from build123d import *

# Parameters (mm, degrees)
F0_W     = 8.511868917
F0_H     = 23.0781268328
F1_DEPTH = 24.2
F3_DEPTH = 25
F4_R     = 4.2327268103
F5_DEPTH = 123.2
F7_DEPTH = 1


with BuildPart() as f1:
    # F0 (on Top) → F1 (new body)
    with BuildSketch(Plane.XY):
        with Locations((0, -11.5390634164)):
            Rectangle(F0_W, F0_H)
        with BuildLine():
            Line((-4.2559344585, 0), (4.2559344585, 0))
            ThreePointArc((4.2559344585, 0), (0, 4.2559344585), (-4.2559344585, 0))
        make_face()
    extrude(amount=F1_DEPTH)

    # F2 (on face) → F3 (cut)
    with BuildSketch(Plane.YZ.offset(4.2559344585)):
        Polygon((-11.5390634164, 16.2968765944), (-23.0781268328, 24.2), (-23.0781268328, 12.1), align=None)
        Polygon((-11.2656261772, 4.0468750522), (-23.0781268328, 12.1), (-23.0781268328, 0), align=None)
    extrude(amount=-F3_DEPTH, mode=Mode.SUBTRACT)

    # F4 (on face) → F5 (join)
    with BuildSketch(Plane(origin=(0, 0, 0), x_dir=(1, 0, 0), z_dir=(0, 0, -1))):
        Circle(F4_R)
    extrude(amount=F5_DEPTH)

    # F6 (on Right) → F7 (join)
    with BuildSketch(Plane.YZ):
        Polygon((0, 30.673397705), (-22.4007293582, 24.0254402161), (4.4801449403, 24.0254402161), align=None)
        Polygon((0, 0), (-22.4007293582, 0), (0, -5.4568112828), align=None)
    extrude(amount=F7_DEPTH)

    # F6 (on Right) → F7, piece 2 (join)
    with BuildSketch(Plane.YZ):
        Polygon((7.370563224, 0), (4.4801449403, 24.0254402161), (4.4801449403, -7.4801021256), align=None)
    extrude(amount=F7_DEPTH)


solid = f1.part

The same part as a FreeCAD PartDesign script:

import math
import FreeCAD as App
import Part
import Sketcher
from FreeCAD import Vector
Q = App.Units.Quantity

doc = App.newDocument("Part")
body = doc.addObject("PartDesign::Body", "Body")
body.AllowCompound = True

sketch1 = doc.addObject("Sketcher::SketchObject", "Sketch")
body.addObject(sketch1)
sketch1.AttachmentSupport = (doc.XY_Plane, [""])
sketch1.MapMode = "FlatFace"
sketch1.addGeometry([
    Part.LineSegment(Vector(-4.3, 0, 0), Vector(-4.3, -23.1, 0)),
    Part.LineSegment(Vector(-4.3, -23.1, 0), Vector(4.3, -23.1, 0)),
    Part.LineSegment(Vector(4.3, -23.1, 0), Vector(4.3, 0, 0)),
    Part.ArcOfCircle(Part.Circle(Vector(0, 0, 0), Vector(0, 0, 1), 4.3), math.radians(0), math.radians(180)),
], False)
sketch1.addConstraint([
    Sketcher.Constraint("Coincident", 0, 2, 1, 1),
    Sketcher.Constraint("Coincident", 1, 2, 2, 1),
    Sketcher.Constraint("Tangent", 2, 2, 3, 1),
    Sketcher.Constraint("Tangent", 3, 2, 0, 1),
    Sketcher.Constraint("Vertical", 0),
    Sketcher.Constraint("Horizontal", 1),
    Sketcher.Constraint("Vertical", 2),
    Sketcher.Constraint("Coincident", 3, 3, -1, 1),
    Sketcher.Constraint("Radius", 3, Q("4.255934 mm")),
    Sketcher.Constraint("DistanceY", 0, 2, 0, 1, Q("23.078127 mm")),
])
pad1 = doc.addObject("PartDesign::Pad", "Pad")
body.addObject(pad1)
pad1.Profile = sketch1
pad1.Length = 24.2

sketch2 = doc.addObject("Sketcher::SketchObject", "Sketch001")
body.addObject(sketch2)
sketch2.AttachmentSupport = (doc.YZ_Plane, [""])
sketch2.MapMode = "FlatFace"
sketch2.AttachmentOffset = App.Placement(Vector(0, 0, 4.255934), App.Rotation())
sketch2.addGeometry([
    Part.LineSegment(Vector(-12, 16, 0), Vector(-23, 24, 0)),
    Part.LineSegment(Vector(-23, 24, 0), Vector(-23, 12, 0)),
    Part.LineSegment(Vector(-23, 12, 0), Vector(-12, 16, 0)),
    Part.LineSegment(Vector(-11, 4, 0), Vector(-23, 12, 0)),
    Part.LineSegment(Vector(-23, 12, 0), Vector(-23, 0, 0)),
    Part.LineSegment(Vector(-23, 0, 0), Vector(-11, 4, 0)),
], False)
sketch2.addConstraint([
    Sketcher.Constraint("Coincident", 0, 2, 1, 1),
    Sketcher.Constraint("Coincident", 1, 2, 2, 1),
    Sketcher.Constraint("Coincident", 2, 2, 0, 1),
    Sketcher.Constraint("Coincident", 3, 2, 4, 1),
    Sketcher.Constraint("Coincident", 4, 2, 5, 1),
    Sketcher.Constraint("Coincident", 5, 2, 3, 1),
    Sketcher.Constraint("Vertical", 1),
    Sketcher.Constraint("Vertical", 4),
    Sketcher.Constraint("Coincident", 3, 2, 1, 2),
    Sketcher.Constraint("PointOnObject", 4, 2, -1),
    Sketcher.Constraint("Equal", 1, 4),
    Sketcher.Constraint("DistanceY", 1, 2, 1, 1, Q("12.1 mm")),
    Sketcher.Constraint("DistanceY", 5, 2, 2, 2, Q("12.250002 mm")),
    Sketcher.Constraint("DistanceX", 4, 2, 5, 2, Q("11.812501 mm")),
    Sketcher.Constraint("Distance", 0, Q("13.986041 mm")),
    Sketcher.Constraint("Distance", 2, Q("12.278589 mm")),
    Sketcher.Constraint("DistanceX", 0, 2, -1, 1, Q("23.078127 mm")),
])
pocket1 = doc.addObject("PartDesign::Pocket", "Pocket")
body.addObject(pocket1)
pocket1.Profile = sketch2
pocket1.Length = 25

sketch3 = doc.addObject("Sketcher::SketchObject", "Sketch002")
body.addObject(sketch3)
sketch3.AttachmentSupport = (doc.XY_Plane, [""])
sketch3.MapMode = "FlatFace"
sketch3.addGeometry(Part.Circle(Vector(0, 0, 0), Vector(0, 0, 1), 4.2), False)
sketch3.addConstraint([
    Sketcher.Constraint("Coincident", 0, 3, -1, 1),
    Sketcher.Constraint("Diameter", 0, Q("8.465454 mm")),
])
pad2 = doc.addObject("PartDesign::Pad", "Pad001")
body.addObject(pad2)
pad2.Profile = sketch3
pad2.Length = 123.2
pad2.Reversed = True

sketch4 = doc.addObject("Sketcher::SketchObject", "Sketch003")
body.addObject(sketch4)
sketch4.AttachmentSupport = (doc.YZ_Plane, [""])
sketch4.MapMode = "FlatFace"
sketch4.addGeometry([
    Part.LineSegment(Vector(0, 31, 0), Vector(-22, 24, 0)),
    Part.LineSegment(Vector(-22, 24, 0), Vector(4, 24, 0)),
    Part.LineSegment(Vector(4, 24, 0), Vector(0, 31, 0)),
    Part.LineSegment(Vector(0, 0, 0), Vector(-22, 0, 0)),
    Part.LineSegment(Vector(-22, 0, 0), Vector(0, -5, 0)),
    Part.LineSegment(Vector(0, -5, 0), Vector(0, 0, 0)),
], False)
sketch4.addConstraint([
    Sketcher.Constraint("Coincident", 0, 2, 1, 1),
    Sketcher.Constraint("Coincident", 1, 2, 2, 1),
    Sketcher.Constraint("Coincident", 2, 2, 0, 1),
    Sketcher.Constraint("Coincident", 3, 2, 4, 1),
    Sketcher.Constraint("Coincident", 4, 2, 5, 1),
    Sketcher.Constraint("Coincident", 5, 2, 3, 1),
    Sketcher.Constraint("Horizontal", 1),
    Sketcher.Constraint("Horizontal", 3),
    Sketcher.Constraint("Vertical", 5),
    Sketcher.Constraint("Coincident", 5, 2, -1, 1),
    Sketcher.Constraint("PointOnObject", 2, 2, -2),
    Sketcher.Constraint("Vertical", 0, 2, 3, 2),
    Sketcher.Constraint("DistanceX", 3, 2, 3, 1, Q("22.400729 mm")),
    Sketcher.Constraint("DistanceY", 5, 1, 5, 2, Q("5.456811 mm")),
    Sketcher.Constraint("DistanceX", 1, 1, 1, 2, Q("26.880874 mm")),
    Sketcher.Constraint("DistanceY", -1, 1, 0, 2, Q("24.02544 mm")),
    Sketcher.Constraint("DistanceY", 4, 2, 2, 2, Q("36.130209 mm")),
])
pad3 = doc.addObject("PartDesign::Pad", "Pad002")
body.addObject(pad3)
pad3.Profile = sketch4
pad3.Length = 1

sketch5 = doc.addObject("Sketcher::SketchObject", "Sketch004")
body.addObject(sketch5)
sketch5.AttachmentSupport = (doc.YZ_Plane, [""])
sketch5.MapMode = "FlatFace"
sketch5.addGeometry([
    Part.LineSegment(Vector(7, 0, 0), Vector(4, 24, 0)),
    Part.LineSegment(Vector(4, 24, 0), Vector(4, -7, 0)),
    Part.LineSegment(Vector(4, -7, 0), Vector(7, 0, 0)),
], False)
sketch5.addConstraint([
    Sketcher.Constraint("Coincident", 0, 2, 1, 1),
    Sketcher.Constraint("Coincident", 1, 2, 2, 1),
    Sketcher.Constraint("Coincident", 2, 2, 0, 1),
    Sketcher.Constraint("Vertical", 1),
    Sketcher.Constraint("PointOnObject", 2, 2, -1),
    Sketcher.Constraint("Distance", 2, Q("8.01913 mm")),
    Sketcher.Constraint("DistanceY", 1, 2, 1, 1, Q("31.505542 mm")),
    Sketcher.Constraint("DistanceY", -1, 1, 0, 2, Q("24.02544 mm")),
    Sketcher.Constraint("DistanceX", -1, 1, 0, 2, Q("4.480145 mm")),
])
pad4 = doc.addObject("PartDesign::Pad", "Pad003")
body.addObject(pad4)
pad4.Profile = sketch5
pad4.Length = 1

doc.recompute()
